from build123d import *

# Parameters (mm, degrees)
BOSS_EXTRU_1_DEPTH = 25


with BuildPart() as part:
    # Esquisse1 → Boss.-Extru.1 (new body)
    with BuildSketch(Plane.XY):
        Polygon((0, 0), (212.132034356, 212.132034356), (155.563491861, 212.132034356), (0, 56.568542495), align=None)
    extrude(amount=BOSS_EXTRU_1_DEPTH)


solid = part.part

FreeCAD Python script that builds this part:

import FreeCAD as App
import Part
import Sketcher
Q = App.Units.Quantity

doc = App.newDocument("Part")
body = doc.addObject("PartDesign::Body", "Body")

# Sketch on XY plane
sketch1 = body.newObject("Sketcher::SketchObject", "Sketch")
sketch1.AttachmentSupport = (doc.getObject("XY_Plane"), [""])
sketch1.MapMode = "FlatFace"
sketch1.addGeometry(Part.LineSegment(App.Vector(0, 0, 0), App.Vector(212, 212, 0)), False)
sketch1.addGeometry(Part.LineSegment(App.Vector(212, 212, 0), App.Vector(156, 212, 0)), False)
sketch1.addGeometry(Part.LineSegment(App.Vector(156, 212, 0), App.Vector(0, 57, 0)), False)
sketch1.addGeometry(Part.LineSegment(App.Vector(0, 57, 0), App.Vector(0, 0, 0)), False)
sketch1.addConstraint(Sketcher.Constraint("Coincident", 0, 2, 1, 1))
sketch1.addConstraint(Sketcher.Constraint("Coincident", 1, 2, 2, 1))
sketch1.addConstraint(Sketcher.Constraint("Coincident", 2, 2, 3, 1))
sketch1.addConstraint(Sketcher.Constraint("Coincident", 3, 2, 0, 1))
sketch1.addConstraint(Sketcher.Constraint("Horizontal", 1))
sketch1.addConstraint(Sketcher.Constraint("Vertical", 3))
sketch1.addConstraint(Sketcher.Constraint("Coincident", 3, 2, -1, 1))
sketch1.addConstraint(Sketcher.Constraint("Parallel", 0, 2))
sketch1.addConstraint(Sketcher.Constraint("Equal", 1, 3))
sketch1.addConstraint(Sketcher.Constraint("Distance", 0, Q("300 mm")))
sketch1.addConstraint(Sketcher.Constraint("Distance", 2, Q("220 mm")))
pad1 = body.newObject("PartDesign::Pad", "Pad")
pad1.Profile = sketch1
pad1.Length = 25

doc.recompute()
